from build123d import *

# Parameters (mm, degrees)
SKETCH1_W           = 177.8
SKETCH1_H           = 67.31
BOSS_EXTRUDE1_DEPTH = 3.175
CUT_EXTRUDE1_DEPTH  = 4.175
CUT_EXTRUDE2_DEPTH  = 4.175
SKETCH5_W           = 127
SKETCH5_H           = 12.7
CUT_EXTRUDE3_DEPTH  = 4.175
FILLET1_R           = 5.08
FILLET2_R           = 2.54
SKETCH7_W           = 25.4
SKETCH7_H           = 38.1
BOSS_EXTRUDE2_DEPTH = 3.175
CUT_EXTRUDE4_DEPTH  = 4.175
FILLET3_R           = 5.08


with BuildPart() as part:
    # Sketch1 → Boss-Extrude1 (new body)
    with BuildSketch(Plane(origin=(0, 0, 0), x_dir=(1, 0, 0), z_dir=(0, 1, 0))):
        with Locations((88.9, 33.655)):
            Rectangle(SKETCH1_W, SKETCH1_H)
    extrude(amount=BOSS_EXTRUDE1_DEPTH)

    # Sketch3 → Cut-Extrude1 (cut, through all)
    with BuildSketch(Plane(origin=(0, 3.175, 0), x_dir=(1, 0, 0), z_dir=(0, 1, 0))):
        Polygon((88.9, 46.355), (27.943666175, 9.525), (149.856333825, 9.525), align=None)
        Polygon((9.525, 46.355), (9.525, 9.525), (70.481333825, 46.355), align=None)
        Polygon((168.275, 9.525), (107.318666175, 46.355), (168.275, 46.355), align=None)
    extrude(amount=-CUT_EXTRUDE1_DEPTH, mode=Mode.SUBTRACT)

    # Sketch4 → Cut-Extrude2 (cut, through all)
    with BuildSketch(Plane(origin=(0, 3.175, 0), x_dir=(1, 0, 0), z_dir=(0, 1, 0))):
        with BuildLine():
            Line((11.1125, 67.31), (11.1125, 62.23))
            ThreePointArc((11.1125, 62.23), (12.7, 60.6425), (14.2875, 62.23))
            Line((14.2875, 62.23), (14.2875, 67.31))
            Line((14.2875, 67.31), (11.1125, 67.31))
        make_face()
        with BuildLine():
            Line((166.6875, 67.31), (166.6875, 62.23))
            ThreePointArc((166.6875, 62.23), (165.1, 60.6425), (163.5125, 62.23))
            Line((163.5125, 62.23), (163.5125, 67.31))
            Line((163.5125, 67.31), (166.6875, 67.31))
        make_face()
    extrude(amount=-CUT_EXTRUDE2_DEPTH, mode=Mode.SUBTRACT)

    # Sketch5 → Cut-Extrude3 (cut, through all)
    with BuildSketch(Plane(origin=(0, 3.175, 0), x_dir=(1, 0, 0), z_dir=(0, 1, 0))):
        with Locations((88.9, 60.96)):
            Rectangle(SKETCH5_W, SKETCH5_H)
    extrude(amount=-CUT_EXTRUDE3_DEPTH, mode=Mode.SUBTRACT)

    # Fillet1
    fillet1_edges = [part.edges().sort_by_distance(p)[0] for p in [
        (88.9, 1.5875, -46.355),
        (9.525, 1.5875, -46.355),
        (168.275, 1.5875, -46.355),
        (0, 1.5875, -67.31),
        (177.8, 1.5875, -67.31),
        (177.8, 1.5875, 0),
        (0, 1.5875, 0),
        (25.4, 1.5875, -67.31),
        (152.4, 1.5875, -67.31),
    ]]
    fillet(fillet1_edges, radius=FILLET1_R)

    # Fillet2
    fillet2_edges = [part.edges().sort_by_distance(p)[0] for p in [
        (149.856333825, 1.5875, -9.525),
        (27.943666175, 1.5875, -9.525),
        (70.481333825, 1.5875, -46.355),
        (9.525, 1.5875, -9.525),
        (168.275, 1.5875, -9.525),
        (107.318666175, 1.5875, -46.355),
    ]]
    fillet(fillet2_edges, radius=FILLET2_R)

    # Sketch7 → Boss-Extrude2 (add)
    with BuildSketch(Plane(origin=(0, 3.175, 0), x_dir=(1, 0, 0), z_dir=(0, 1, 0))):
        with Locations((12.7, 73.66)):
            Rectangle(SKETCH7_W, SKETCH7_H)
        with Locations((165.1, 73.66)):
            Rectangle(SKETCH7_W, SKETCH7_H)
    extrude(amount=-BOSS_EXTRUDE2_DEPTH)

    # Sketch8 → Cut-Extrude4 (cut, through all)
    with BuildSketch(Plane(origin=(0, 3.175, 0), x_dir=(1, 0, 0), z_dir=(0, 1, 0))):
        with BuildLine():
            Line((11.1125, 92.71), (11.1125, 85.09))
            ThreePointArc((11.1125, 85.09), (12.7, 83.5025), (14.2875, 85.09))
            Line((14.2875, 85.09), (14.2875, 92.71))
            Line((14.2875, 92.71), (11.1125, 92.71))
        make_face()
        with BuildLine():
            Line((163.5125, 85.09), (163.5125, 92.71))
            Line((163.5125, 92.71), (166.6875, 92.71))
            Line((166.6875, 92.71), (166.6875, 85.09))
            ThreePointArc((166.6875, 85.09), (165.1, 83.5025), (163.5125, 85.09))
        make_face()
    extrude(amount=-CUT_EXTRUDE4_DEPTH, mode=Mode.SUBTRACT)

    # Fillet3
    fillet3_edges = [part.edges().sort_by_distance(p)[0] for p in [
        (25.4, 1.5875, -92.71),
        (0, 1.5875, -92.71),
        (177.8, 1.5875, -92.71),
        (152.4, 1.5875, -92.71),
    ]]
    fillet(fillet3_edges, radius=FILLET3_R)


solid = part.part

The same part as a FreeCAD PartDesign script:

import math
import FreeCAD as App
import Part
import Sketcher
Q = App.Units.Quantity


def edges_at(feature, points):
    """Names of the edges that pass closest to the given points."""
    edges = feature.Shape.Edges
    near = lambda p: min(range(len(edges)), key=lambda i: edges[i].distToShape(Part.Vertex(*p))[0])
    return sorted({f"Edge{near(p) + 1}" for p in points})

doc = App.newDocument("Part")
body = doc.addObject("PartDesign::Body", "Body")

sketch1 = body.newObject("Sketcher::SketchObject", "Sketch")
sketch1.AttachmentSupport = (doc.getObject("XZ_Plane"), [""])
sketch1.MapMode = "FlatFace"
sketch1.addGeometry([
    Part.LineSegment(App.Vector(0, -67.31, 0), App.Vector(0, 0, 0)),
    Part.LineSegment(App.Vector(0, 0, 0), App.Vector(177.8, 0, 0)),
    Part.LineSegment(App.Vector(177.8, 0, 0), App.Vector(177.8, -67.31, 0)),
    Part.LineSegment(App.Vector(177.8, -67.31, 0), App.Vector(0, -67.31, 0)),
], False)
sketch1.addConstraint([
    Sketcher.Constraint("Coincident", 0, 2, 1, 1),
    Sketcher.Constraint("Coincident", 1, 2, 2, 1),
    Sketcher.Constraint("Coincident", 2, 2, 3, 1),
    Sketcher.Constraint("Coincident", 3, 2, 0, 1),
    Sketcher.Constraint("Vertical", 0),
    Sketcher.Constraint("Horizontal", 1),
    Sketcher.Constraint("Vertical", 2),
    Sketcher.Constraint("Horizontal", 3),
    Sketcher.Constraint("Coincident", 0, 2, -1, 1),
    Sketcher.Constraint("DistanceX", 1, 1, 1, 2, Q("7 in")),
    Sketcher.Constraint("DistanceY", 0, 1, 0, 2, Q("2.65 in")),
])
pad1 = body.newObject("PartDesign::Pad", "Pad")
pad1.Profile = sketch1
pad1.Length = Q("0.125 in")
pad1.Reversed = True

sketch2 = body.newObject("Sketcher::SketchObject", "Sketch001")
sketch2.AttachmentSupport = (doc.getObject("XZ_Plane"), [""])
sketch2.MapMode = "FlatFace"
sketch2.AttachmentOffset = App.Placement(App.Vector(0, 0, -0.125 * 25.4), App.Rotation())
sketch2.addGeometry([
    Part.LineSegment(App.Vector(88.9, -46.355, 0), App.Vector(27.943666, -9.525, 0)),
    Part.LineSegment(App.Vector(27.943666, -9.525, 0), App.Vector(149.856334, -9.525, 0)),
    Part.LineSegment(App.Vector(149.856334, -9.525, 0), App.Vector(88.9, -46.355, 0)),
    Part.LineSegment(App.Vector(9.525, -46.355, 0), App.Vector(9.525, -9.525, 0)),
    Part.LineSegment(App.Vector(9.525, -9.525, 0), App.Vector(70.481334, -46.355, 0)),
    Part.LineSegment(App.Vector(70.481334, -46.355, 0), App.Vector(9.525, -46.355, 0)),
    Part.LineSegment(App.Vector(107.318666, -46.355, 0), App.Vector(168.275, -9.525, 0)),
    Part.LineSegment(App.Vector(168.275, -9.525, 0), App.Vector(168.275, -46.355, 0)),
    Part.LineSegment(App.Vector(168.275, -46.355, 0), App.Vector(107.318666, -46.355, 0)),
], False)
sketch2.addConstraint([
    Sketcher.Constraint("Coincident", 0, 2, 1, 1),
    Sketcher.Constraint("Coincident", 1, 2, 2, 1),
    Sketcher.Constraint("Coincident", 2, 2, 0, 1),
    Sketcher.Constraint("Coincident", 3, 2, 4, 1),
    Sketcher.Constraint("Coincident", 4, 2, 5, 1),
    Sketcher.Constraint("Coincident", 5, 2, 3, 1),
    Sketcher.Constraint("Coincident", 6, 2, 7, 1),
    Sketcher.Constraint("Coincident", 7, 2, 8, 1),
    Sketcher.Constraint("Coincident", 8, 2, 6, 1),
    Sketcher.Constraint("Horizontal", 1),
    Sketcher.Constraint("Vertical", 3),
    Sketcher.Constraint("Horizontal", 5),
    Sketcher.Constraint("Vertical", 7),
    Sketcher.Constraint("Horizontal", 8),
    Sketcher.Constraint("Parallel", 0, 4),
    Sketcher.Constraint("Parallel", 2, 6),
    Sketcher.Constraint("Horizontal", 1, 2, 3, 2),
    Sketcher.Constraint("Horizontal", 2, 2, 4, 2),
    Sketcher.Constraint("Horizontal", 3, 2, 6, 2),
    Sketcher.Constraint("Horizontal", 5, 2, 7, 2),
    Sketcher.Constraint("Equal", 5, 8),
    Sketcher.Constraint("DistanceY", 3, 1, 3, 2, Q("1.45 in")),
    Sketcher.Constraint("DistanceX", -1, 1, 2, 2, Q("3.5 in")),
    Sketcher.Constraint("DistanceX", 3, 2, 6, 2, Q("6.25 in")),
    Sketcher.Constraint("DistanceY", 0, 2, -1, 1, Q("0.375 in")),
    Sketcher.Constraint("DistanceX", -1, 1, 3, 2, Q("0.375 in")),
    Sketcher.Constraint("DistanceX", 1, 1, 1, 2, 121.912668),
])
pocket1 = body.newObject("PartDesign::Pocket", "Pocket")
pocket1.Profile = sketch2
pocket1.Type = "ThroughAll"
pocket1.Reversed = True

sketch3 = body.newObject("Sketcher::SketchObject", "Sketch002")
sketch3.AttachmentSupport = (doc.getObject("XZ_Plane"), [""])
sketch3.MapMode = "FlatFace"
sketch3.AttachmentOffset = App.Placement(App.Vector(0, 0, -0.125 * 25.4), App.Rotation())
sketch3.addGeometry([
    Part.LineSegment(App.Vector(11.1125, -67.31, 0), App.Vector(11.1125, -62.23, 0)),
    Part.ArcOfCircle(Part.Circle(App.Vector(12.7, -62.23, 0), App.Vector(0, 0, 1), 1.5875), math.radians(0), math.radians(180)),
    Part.LineSegment(App.Vector(14.2875, -62.23, 0), App.Vector(14.2875, -67.31, 0)),
    Part.LineSegment(App.Vector(14.2875, -67.31, 0), App.Vector(11.1125, -67.31, 0)),
    Part.LineSegment(App.Vector(166.6875, -62.23, 0), App.Vector(166.6875, -67.31, 0)),
    Part.LineSegment(App.Vector(166.6875, -67.31, 0), App.Vector(163.5125, -67.31, 0)),
    Part.LineSegment(App.Vector(163.5125, -67.31, 0), App.Vector(163.5125, -62.23, 0)),
    Part.ArcOfCircle(Part.Circle(App.Vector(165.1, -62.23, 0), App.Vector(0, 0, 1), 1.5875), math.radians(0), math.radians(180)),
], False)
sketch3.addConstraint([
    Sketcher.Constraint("Tangent", 0, 2, 1, 2),
    Sketcher.Constraint("Tangent", 1, 1, 2, 1),
    Sketcher.Constraint("Coincident", 2, 2, 3, 1),
    Sketcher.Constraint("Coincident", 3, 2, 0, 1),
    Sketcher.Constraint("Coincident", 4, 2, 5, 1),
    Sketcher.Constraint("Coincident", 5, 2, 6, 1),
    Sketcher.Constraint("Tangent", 6, 2, 7, 2),
    Sketcher.Constraint("Tangent", 7, 1, 4, 1),
    Sketcher.Constraint("Vertical", 0),
    Sketcher.Constraint("Vertical", 2),
    Sketcher.Constraint("Horizontal", 3),
    Sketcher.Constraint("Vertical", 4),
    Sketcher.Constraint("Horizontal", 5),
    Sketcher.Constraint("Vertical", 6),
    Sketcher.Constraint("Equal", 1, 7),
    Sketcher.Constraint("Horizontal", 1, 3, 7, 3),
    Sketcher.Constraint("Horizontal", 3, 2, 4, 2),
    Sketcher.Constraint("DistanceY", 0, 1, 0, 2, Q("0.2 in")),
    Sketcher.Constraint("Radius", 1, Q("0.0625 in")),
    Sketcher.Constraint("DistanceX", 1, 3, 7, 3, Q("6 in")),
    Sketcher.Constraint("DistanceX", -1, 1, 1, 3, Q("0.5 in")),
    Sketcher.Constraint("DistanceY", 1, 3, -1, 1, Q("2.45 in")),
])
pocket2 = body.newObject("PartDesign::Pocket", "Pocket001")
pocket2.Profile = sketch3
pocket2.Type = "ThroughAll"
pocket2.Reversed = True

sketch4 = body.newObject("Sketcher::SketchObject", "Sketch003")
sketch4.AttachmentSupport = (doc.getObject("XZ_Plane"), [""])
sketch4.MapMode = "FlatFace"
sketch4.AttachmentOffset = App.Placement(App.Vector(0, 0, -0.125 * 25.4), App.Rotation())
sketch4.addGeometry([
    Part.LineSegment(App.Vector(25.4, -67.31, 0), App.Vector(25.4, -54.61, 0)),
    Part.LineSegment(App.Vector(25.4, -54.61, 0), App.Vector(152.4, -54.61, 0)),
    Part.LineSegment(App.Vector(152.4, -54.61, 0), App.Vector(152.4, -67.31, 0)),
    Part.LineSegment(App.Vector(152.4, -67.31, 0), App.Vector(25.4, -67.31, 0)),
], False)
sketch4.addConstraint([
    Sketcher.Constraint("Coincident", 0, 2, 1, 1),
    Sketcher.Constraint("Coincident", 1, 2, 2, 1),
    Sketcher.Constraint("Coincident", 2, 2, 3, 1),
    Sketcher.Constraint("Coincident", 3, 2, 0, 1),
    Sketcher.Constraint("Vertical", 0),
    Sketcher.Constraint("Horizontal", 1),
    Sketcher.Constraint("Vertical", 2),
    Sketcher.Constraint("Horizontal", 3),
    Sketcher.Constraint("DistanceX", 1, 1, 1, 2, Q("5 in")),
    Sketcher.Constraint("DistanceY", 0, 1, 0, 2, Q("0.5 in")),
    Sketcher.Constraint("DistanceX", -1, 1, 0, 2, Q("1 in")),
    Sketcher.Constraint("DistanceY", 0, 2, -1, 1, Q("2.15 in")),
])
pocket3 = body.newObject("PartDesign::Pocket", "Pocket002")
pocket3.Profile = sketch4
pocket3.Type = "ThroughAll"
pocket3.Reversed = True
doc.recompute()

fillet = body.newObject("PartDesign::Fillet", "Fillet")
fillet.Base = (pocket3, edges_at(pocket3, [
    (88.9, 1.587, -46.355),
    (9.525, 1.587, -46.355),
    (168.275, 1.587, -46.355),
    (0, 1.587, -67.31),
    (177.8, 1.587, -67.31),
    (177.8, 1.587, 0),
    (0, 1.587, 0),
    (25.4, 1.587, -67.31),
    (152.4, 1.587, -67.31),
]))
fillet.Radius = Q("0.2 in")
doc.recompute()

fillet2 = body.newObject("PartDesign::Fillet", "Fillet001")
fillet2.Base = (fillet, edges_at(fillet, [
    (149.856, 1.587, -9.525),
    (27.944, 1.587, -9.525),
    (70.481, 1.587, -46.355),
    (9.525, 1.587, -9.525),
    (168.275, 1.587, -9.525),
    (107.319, 1.587, -46.355),
]))
fillet2.Radius = Q("0.1 in")

sketch5 = body.newObject("Sketcher::SketchObject", "Sketch004")
sketch5.AttachmentSupport = (doc.getObject("XZ_Plane"), [""])
sketch5.MapMode = "FlatFace"
sketch5.AttachmentOffset = App.Placement(App.Vector(0, 0, -0.125 * 25.4), App.Rotation())
sketch5.addGeometry([
    Part.LineSegment(App.Vector(0, -92.71, 0), App.Vector(0, -54.61, 0)),
    Part.LineSegment(App.Vector(0, -54.61, 0), App.Vector(25.4, -54.61, 0)),
    Part.LineSegment(App.Vector(25.4, -54.61, 0), App.Vector(25.4, -92.71, 0)),
    Part.LineSegment(App.Vector(25.4, -92.71, 0), App.Vector(0, -92.71, 0)),
    Part.LineSegment(App.Vector(152.4, -92.71, 0), App.Vector(152.4, -54.61, 0)),
    Part.LineSegment(App.Vector(152.4, -54.61, 0), App.Vector(177.8, -54.61, 0)),
    Part.LineSegment(App.Vector(177.8, -54.61, 0), App.Vector(177.8, -92.71, 0)),
    Part.LineSegment(App.Vector(177.8, -92.71, 0), App.Vector(152.4, -92.71, 0)),
], False)
sketch5.addConstraint([
    Sketcher.Constraint("Coincident", 0, 2, 1, 1),
    Sketcher.Constraint("Coincident", 1, 2, 2, 1),
    Sketcher.Constraint("Coincident", 2, 2, 3, 1),
    Sketcher.Constraint("Coincident", 3, 2, 0, 1),
    Sketcher.Constraint("Coincident", 4, 2, 5, 1),
    Sketcher.Constraint("Coincident", 5, 2, 6, 1),
    Sketcher.Constraint("Coincident", 6, 2, 7, 1),
    Sketcher.Constraint("Coincident", 7, 2, 4, 1),
    Sketcher.Constraint("Vertical", 0),
    Sketcher.Constraint("Horizontal", 1),
    Sketcher.Constraint("Vertical", 2),
    Sketcher.Constraint("Horizontal", 3),
    Sketcher.Constraint("Vertical", 4),
    Sketcher.Constraint("Horizontal", 5),
    Sketcher.Constraint("Vertical", 6),
    Sketcher.Constraint("Horizontal", 7),
    Sketcher.Constraint("PointOnObject", 0, 2, -2),
    Sketcher.Constraint("Horizontal", 1, 2, 4, 2),
    Sketcher.Constraint("Horizontal", 3, 2, 6, 2),
    Sketcher.Constraint("Equal", 3, 5),
    Sketcher.Constraint("DistanceX", 1, 1, 1, 2, Q("1 in")),
    Sketcher.Constraint("DistanceY", 0, 1, 0, 2, Q("1.5 in")),
    Sketcher.Constraint("DistanceX", -1, 1, 4, 2, Q("6 in")),
    Sketcher.Constraint("DistanceY", 0, 2, -1, 1, Q("2.15 in")),
])
pad2 = body.newObject("PartDesign::Pad", "Pad001")
pad2.Profile = sketch5
pad2.Length = Q("0.125 in")

sketch6 = body.newObject("Sketcher::SketchObject", "Sketch005")
sketch6.AttachmentSupport = (doc.getObject("XZ_Plane"), [""])
sketch6.MapMode = "FlatFace"
sketch6.AttachmentOffset = App.Placement(App.Vector(0, 0, -0.125 * 25.4), App.Rotation())
sketch6.addGeometry([
    Part.LineSegment(App.Vector(11.1125, -92.71, 0), App.Vector(11.1125, -85.09, 0)),
    Part.ArcOfCircle(Part.Circle(App.Vector(12.7, -85.09, 0), App.Vector(0, 0, 1), 1.5875), math.radians(0), math.radians(180)),
    Part.LineSegment(App.Vector(14.2875, -85.09, 0), App.Vector(14.2875, -92.71, 0)),
    Part.LineSegment(App.Vector(14.2875, -92.71, 0), App.Vector(11.1125, -92.71, 0)),
    Part.LineSegment(App.Vector(163.5125, -92.71, 0), App.Vector(163.5125, -85.09, 0)),
    Part.ArcOfCircle(Part.Circle(App.Vector(165.1, -85.09, 0), App.Vector(0, 0, 1), 1.5875), math.radians(0), math.radians(180)),
    Part.LineSegment(App.Vector(166.6875, -85.09, 0), App.Vector(166.6875, -92.71, 0)),
    Part.LineSegment(App.Vector(166.6875, -92.71, 0), App.Vector(163.5125, -92.71, 0)),
], False)
sketch6.addConstraint([
    Sketcher.Constraint("Tangent", 0, 2, 1, 2),
    Sketcher.Constraint("Tangent", 1, 1, 2, 1),
    Sketcher.Constraint("Coincident", 2, 2, 3, 1),
    Sketcher.Constraint("Coincident", 3, 2, 0, 1),
    Sketcher.Constraint("Tangent", 4, 2, 5, 2),
    Sketcher.Constraint("Tangent", 5, 1, 6, 1),
    Sketcher.Constraint("Coincident", 6, 2, 7, 1),
    Sketcher.Constraint("Coincident", 7, 2, 4, 1),
    Sketcher.Constraint("Vertical", 0),
    Sketcher.Constraint("Vertical", 2),
    Sketcher.Constraint("Horizontal", 3),
    Sketcher.Constraint("Vertical", 4),
    Sketcher.Constraint("Vertical", 6),
    Sketcher.Constraint("Horizontal", 7),
    Sketcher.Constraint("Equal", 1, 5),
    Sketcher.Constraint("Horizontal", 1, 3, 5, 3),
    Sketcher.Constraint("Horizontal", 3, 2, 6, 2),
    Sketcher.Constraint("DistanceY", 0, 1, 0, 2, Q("0.3 in")),
    Sketcher.Constraint("Radius", 1, Q("0.0625 in")),
    Sketcher.Constraint("DistanceX", 1, 3, 5, 3, Q("6 in")),
    Sketcher.Constraint("DistanceX", -1, 1, 1, 3, Q("0.5 in")),
    Sketcher.Constraint("DistanceY", 1, 3, -1, 1, Q("3.35 in")),
])
pocket4 = body.newObject("PartDesign::Pocket", "Pocket003")
pocket4.Profile = sketch6
pocket4.Type = "ThroughAll"
pocket4.Reversed = True
doc.recompute()

fillet3 = body.newObject("PartDesign::Fillet", "Fillet002")
fillet3.Base = (pocket4, edges_at(pocket4, [
    (25.4, 1.587, -92.71),
    (0, 1.587, -92.71),
    (177.8, 1.587, -92.71),
    (152.4, 1.587, -92.71),
]))
fillet3.Radius = Q("0.2 in")

doc.recompute()
